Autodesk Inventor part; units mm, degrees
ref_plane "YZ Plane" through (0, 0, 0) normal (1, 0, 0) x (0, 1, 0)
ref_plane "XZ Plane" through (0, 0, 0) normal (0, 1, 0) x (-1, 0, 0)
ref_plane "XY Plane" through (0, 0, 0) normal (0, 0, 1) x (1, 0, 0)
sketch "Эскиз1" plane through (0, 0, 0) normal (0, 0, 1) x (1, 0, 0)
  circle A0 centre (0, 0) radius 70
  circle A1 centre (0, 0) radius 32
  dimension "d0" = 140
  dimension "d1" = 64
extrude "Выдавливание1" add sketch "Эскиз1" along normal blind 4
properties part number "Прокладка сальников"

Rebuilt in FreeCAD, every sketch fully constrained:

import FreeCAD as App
import Part
import Sketcher
Q = App.Units.Quantity

doc = App.newDocument("Part")
body = doc.addObject("PartDesign::Body", "Body")

# Sketch on XY plane
sketch1 = body.newObject("Sketcher::SketchObject", "Sketch")
sketch1.AttachmentSupport = (doc.getObject("XY_Plane"), [""])
sketch1.MapMode = "FlatFace"
sketch1.addGeometry([
    Part.Circle(App.Vector(0, 0, 0), App.Vector(0, 0, 1), 70),
    Part.Circle(App.Vector(0, 0, 0), App.Vector(0, 0, 1), 32),
], False)
sketch1.addConstraint([
    Sketcher.Constraint("Coincident", 0, 3, -1, 1),
    Sketcher.Constraint("Coincident", 1, 3, -1, 1),
    Sketcher.Constraint("Diameter", 0, Q("140 mm")),
    Sketcher.Constraint("Diameter", 1, Q("64 mm")),
])
pad1 = body.newObject("PartDesign::Pad", "Pad")
pad1.Profile = sketch1
pad1.Length = 4

doc.recompute()
